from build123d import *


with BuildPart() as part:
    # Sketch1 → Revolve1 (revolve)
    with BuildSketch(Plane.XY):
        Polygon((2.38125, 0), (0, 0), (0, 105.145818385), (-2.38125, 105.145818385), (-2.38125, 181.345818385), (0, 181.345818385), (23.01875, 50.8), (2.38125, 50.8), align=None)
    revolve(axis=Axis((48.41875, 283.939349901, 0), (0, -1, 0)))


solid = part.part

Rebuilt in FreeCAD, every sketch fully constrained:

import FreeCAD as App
import Part
import Sketcher
from FreeCAD import Vector
Q = App.Units.Quantity

doc = App.newDocument("Part")
params = doc.addObject("Spreadsheet::Sheet", "Params")
for row, (alias, value) in enumerate([
    ("sketch1_height", "2 in"),
    ("sketch1_height2", "3 in"),
    ("sketch1_width", "0.09375 in"),
    ("revolution_angle", "360 deg"),
], start=1):
    params.set(f"A{row}", alias)
    params.set(f"B{row}", "=" + value)
    params.setAlias(f"B{row}", alias)

body = doc.addObject("PartDesign::Body", "Body")

sketch1 = doc.addObject("Sketcher::SketchObject", "Sketch")
body.addObject(sketch1)
sketch1.AttachmentSupport = (doc.XY_Plane, [""])
sketch1.MapMode = "FlatFace"
sketch1.addGeometry([
    Part.LineSegment(Vector(0, 0, 0), Vector(2.4, 0, 0)),
    Part.LineSegment(Vector(2.4, 0, 0), Vector(2.4, 50.8, 0)),
    Part.LineSegment(Vector(2.4, 50.8, 0), Vector(23, 50.8, 0)),
    Part.LineSegment(Vector(23, 50.8, 0), Vector(0, 181.3, 0)),
    Part.LineSegment(Vector(0, 181.3, 0), Vector(-2.4, 181.3, 0)),
    Part.LineSegment(Vector(-2.4, 181.3, 0), Vector(-2.4, 105.1, 0)),
    Part.LineSegment(Vector(-2.4, 105.1, 0), Vector(0, 105.1, 0)),
    Part.LineSegment(Vector(0, 105.1, 0), Vector(0, 0, 0)),
], False)
sketch1.addGeometry(Part.LineSegment(Vector(48.4, 181.3, 0), Vector(48.4, 0, 0)), True)
sketch1.addConstraint([
    Sketcher.Constraint("Coincident", 0, 2, 1, 1),
    Sketcher.Constraint("Coincident", 1, 2, 2, 1),
    Sketcher.Constraint("Coincident", 2, 2, 3, 1),
    Sketcher.Constraint("Coincident", 3, 2, 4, 1),
    Sketcher.Constraint("Coincident", 4, 2, 5, 1),
    Sketcher.Constraint("Coincident", 5, 2, 6, 1),
    Sketcher.Constraint("Coincident", 6, 2, 7, 1),
    Sketcher.Constraint("Coincident", 7, 2, 0, 1),
    Sketcher.Constraint("Horizontal", 0),
    Sketcher.Constraint("Vertical", 1),
    Sketcher.Constraint("Horizontal", 2),
    Sketcher.Constraint("Horizontal", 4),
    Sketcher.Constraint("Vertical", 5),
    Sketcher.Constraint("Horizontal", 6),
    Sketcher.Constraint("Vertical", 7),
    Sketcher.Constraint("Vertical", 8),
    Sketcher.Constraint("Coincident", 7, 2, -1, 1),
    Sketcher.Constraint("PointOnObject", 3, 2, -2),
    Sketcher.Constraint("PointOnObject", 8, 2, -1),
    Sketcher.Constraint("Horizontal", 4, 2, 8, 1),
    Sketcher.Constraint("Equal", 0, 4),
    Sketcher.Constraint("DistanceY", 1, 1, 1, 2, Q("2 in")),
    Sketcher.Constraint("DistanceY", 5, 2, 5, 1, Q("3 in")),
    Sketcher.Constraint("Angle", 3, Q("100 deg")),
    Sketcher.Constraint("DistanceX", 4, 2, 2, 2, Q("1 in")),
    Sketcher.Constraint("DistanceX", 4, 2, 8, 1, Q("2 in")),
    Sketcher.Constraint("DistanceX", 0, 1, 0, 2, Q("0.09375 in")),
])
sketch1.setExpression("Constraints[21]", "Params.sketch1_height")
sketch1.setExpression("Constraints[22]", "Params.sketch1_height2")
sketch1.setExpression("Constraints[26]", "Params.sketch1_width")
revolution = doc.addObject("PartDesign::Revolution", "Revolution")
body.addObject(revolution)
revolution.Profile = sketch1
revolution.ReferenceAxis = (sketch1, ["Axis0"])
revolution.setExpression("Angle", "Params.revolution_angle")

doc.recompute()
